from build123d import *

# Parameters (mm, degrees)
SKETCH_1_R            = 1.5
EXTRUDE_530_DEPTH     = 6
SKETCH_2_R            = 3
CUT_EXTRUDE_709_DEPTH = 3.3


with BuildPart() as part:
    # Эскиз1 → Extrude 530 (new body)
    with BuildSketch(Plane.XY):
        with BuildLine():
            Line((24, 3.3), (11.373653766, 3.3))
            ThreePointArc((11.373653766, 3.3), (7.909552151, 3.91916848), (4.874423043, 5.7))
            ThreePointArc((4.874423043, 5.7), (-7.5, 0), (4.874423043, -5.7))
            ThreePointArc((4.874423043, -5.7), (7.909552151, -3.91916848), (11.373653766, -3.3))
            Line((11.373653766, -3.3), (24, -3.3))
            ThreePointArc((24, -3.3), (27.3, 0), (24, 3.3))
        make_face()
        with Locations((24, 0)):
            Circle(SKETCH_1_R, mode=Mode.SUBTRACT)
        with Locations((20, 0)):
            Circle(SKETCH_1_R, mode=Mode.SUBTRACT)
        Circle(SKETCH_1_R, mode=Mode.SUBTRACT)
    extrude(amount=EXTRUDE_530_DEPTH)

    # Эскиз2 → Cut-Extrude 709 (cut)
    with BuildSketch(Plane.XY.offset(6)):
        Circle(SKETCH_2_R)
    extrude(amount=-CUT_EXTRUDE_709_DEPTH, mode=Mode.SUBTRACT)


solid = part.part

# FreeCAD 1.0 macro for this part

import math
import FreeCAD as App
import Part
import Sketcher

V = App.Vector

doc = App.newDocument("Part")
body = doc.addObject("PartDesign::Body", "Body")

# Sketch on XY plane
sketch1 = body.newObject("Sketcher::SketchObject", "Sketch")
sketch1.AttachmentSupport = (doc.getObject("XY_Plane"), [""])
sketch1.MapMode = "FlatFace"
sketch1.addGeometry([
    Part.LineSegment(V(24, 3.3, 0), V(11.4, 3.3, 0)),  # 0
    Part.ArcOfCircle(Part.Circle(V(11.4, 13.3, 0), V(0, 0, 1), 10), math.radians(-131), math.radians(-90)),  # 1
    Part.ArcOfCircle(Part.Circle(V(0, 0, 0), V(0, 0, 1), 7.5), math.radians(49), math.radians(311)),  # 2
    Part.ArcOfCircle(Part.Circle(V(11.4, -13.3, 0), V(0, 0, 1), 10), math.radians(90), math.radians(131)),  # 3
    Part.LineSegment(V(11.4, -3.3, 0), V(24, -3.3, 0)),  # 4
    Part.ArcOfCircle(Part.Circle(V(24, 0, 0), V(0, 0, 1), 3.3), math.radians(-90), math.radians(90)),  # 5
    Part.Circle(V(0, 0, 0), V(0, 0, 1), 1.5),  # 6
    Part.Circle(V(20, 0, 0), V(0, 0, 1), 1.5),  # 7
    Part.Circle(V(24, 0, 0), V(0, 0, 1), 1.5),  # 8
], False)
sketch1.addConstraint([
    Sketcher.Constraint("Tangent", 0, 2, 1, 2),
    Sketcher.Constraint("Tangent", 1, 1, 2, 1),
    Sketcher.Constraint("Tangent", 2, 2, 3, 2),
    Sketcher.Constraint("Tangent", 3, 1, 4, 1),
    Sketcher.Constraint("Tangent", 4, 2, 5, 1),
    Sketcher.Constraint("Tangent", 5, 2, 0, 1),
    Sketcher.Constraint("Horizontal", 0),
    Sketcher.Constraint("Horizontal", 4),
    Sketcher.Constraint("Coincident", 2, 3, -1, 1),
    Sketcher.Constraint("Coincident", 6, 3, -1, 1),
    Sketcher.Constraint("Coincident", 8, 3, 5, 3),
    Sketcher.Constraint("Equal", 1, 3),
    Sketcher.Constraint("Equal", 6, 7),
    Sketcher.Constraint("Equal", 7, 8),
    Sketcher.Constraint("PointOnObject", 5, 3, -1),
    Sketcher.Constraint("PointOnObject", 7, 3, -1),
    Sketcher.Constraint("Diameter", 6, 3.0),
    Sketcher.Constraint("Radius", 1, 10.0),
    Sketcher.Constraint("Radius", 2, 7.5),
    Sketcher.Constraint("Radius", 5, 3.3),
    Sketcher.Constraint("DistanceX", -1, 1, 5, 3, 24.0),
    Sketcher.Constraint("DistanceX", -1, 1, 7, 3, 20.0),
])
pad1 = body.newObject("PartDesign::Pad", "Pad")
pad1.Profile = sketch1
pad1.Length = 6

# Sketch on XY plane
sketch2 = body.newObject("Sketcher::SketchObject", "Sketch001")
sketch2.AttachmentSupport = (doc.getObject("XY_Plane"), [""])
sketch2.MapMode = "FlatFace"
sketch2.AttachmentOffset = App.Placement(V(0, 0, 6), App.Rotation())
sketch2.addGeometry(Part.Circle(V(0, 0, 0), V(0, 0, 1), 3), False)
sketch2.addConstraint([
    Sketcher.Constraint("Coincident", 0, 3, -1, 1),
    Sketcher.Constraint("Diameter", 0, 6.0),
])
pocket1 = body.newObject("PartDesign::Pocket", "Pocket")
pocket1.Profile = sketch2
pocket1.Length = 3.3

doc.recompute()
